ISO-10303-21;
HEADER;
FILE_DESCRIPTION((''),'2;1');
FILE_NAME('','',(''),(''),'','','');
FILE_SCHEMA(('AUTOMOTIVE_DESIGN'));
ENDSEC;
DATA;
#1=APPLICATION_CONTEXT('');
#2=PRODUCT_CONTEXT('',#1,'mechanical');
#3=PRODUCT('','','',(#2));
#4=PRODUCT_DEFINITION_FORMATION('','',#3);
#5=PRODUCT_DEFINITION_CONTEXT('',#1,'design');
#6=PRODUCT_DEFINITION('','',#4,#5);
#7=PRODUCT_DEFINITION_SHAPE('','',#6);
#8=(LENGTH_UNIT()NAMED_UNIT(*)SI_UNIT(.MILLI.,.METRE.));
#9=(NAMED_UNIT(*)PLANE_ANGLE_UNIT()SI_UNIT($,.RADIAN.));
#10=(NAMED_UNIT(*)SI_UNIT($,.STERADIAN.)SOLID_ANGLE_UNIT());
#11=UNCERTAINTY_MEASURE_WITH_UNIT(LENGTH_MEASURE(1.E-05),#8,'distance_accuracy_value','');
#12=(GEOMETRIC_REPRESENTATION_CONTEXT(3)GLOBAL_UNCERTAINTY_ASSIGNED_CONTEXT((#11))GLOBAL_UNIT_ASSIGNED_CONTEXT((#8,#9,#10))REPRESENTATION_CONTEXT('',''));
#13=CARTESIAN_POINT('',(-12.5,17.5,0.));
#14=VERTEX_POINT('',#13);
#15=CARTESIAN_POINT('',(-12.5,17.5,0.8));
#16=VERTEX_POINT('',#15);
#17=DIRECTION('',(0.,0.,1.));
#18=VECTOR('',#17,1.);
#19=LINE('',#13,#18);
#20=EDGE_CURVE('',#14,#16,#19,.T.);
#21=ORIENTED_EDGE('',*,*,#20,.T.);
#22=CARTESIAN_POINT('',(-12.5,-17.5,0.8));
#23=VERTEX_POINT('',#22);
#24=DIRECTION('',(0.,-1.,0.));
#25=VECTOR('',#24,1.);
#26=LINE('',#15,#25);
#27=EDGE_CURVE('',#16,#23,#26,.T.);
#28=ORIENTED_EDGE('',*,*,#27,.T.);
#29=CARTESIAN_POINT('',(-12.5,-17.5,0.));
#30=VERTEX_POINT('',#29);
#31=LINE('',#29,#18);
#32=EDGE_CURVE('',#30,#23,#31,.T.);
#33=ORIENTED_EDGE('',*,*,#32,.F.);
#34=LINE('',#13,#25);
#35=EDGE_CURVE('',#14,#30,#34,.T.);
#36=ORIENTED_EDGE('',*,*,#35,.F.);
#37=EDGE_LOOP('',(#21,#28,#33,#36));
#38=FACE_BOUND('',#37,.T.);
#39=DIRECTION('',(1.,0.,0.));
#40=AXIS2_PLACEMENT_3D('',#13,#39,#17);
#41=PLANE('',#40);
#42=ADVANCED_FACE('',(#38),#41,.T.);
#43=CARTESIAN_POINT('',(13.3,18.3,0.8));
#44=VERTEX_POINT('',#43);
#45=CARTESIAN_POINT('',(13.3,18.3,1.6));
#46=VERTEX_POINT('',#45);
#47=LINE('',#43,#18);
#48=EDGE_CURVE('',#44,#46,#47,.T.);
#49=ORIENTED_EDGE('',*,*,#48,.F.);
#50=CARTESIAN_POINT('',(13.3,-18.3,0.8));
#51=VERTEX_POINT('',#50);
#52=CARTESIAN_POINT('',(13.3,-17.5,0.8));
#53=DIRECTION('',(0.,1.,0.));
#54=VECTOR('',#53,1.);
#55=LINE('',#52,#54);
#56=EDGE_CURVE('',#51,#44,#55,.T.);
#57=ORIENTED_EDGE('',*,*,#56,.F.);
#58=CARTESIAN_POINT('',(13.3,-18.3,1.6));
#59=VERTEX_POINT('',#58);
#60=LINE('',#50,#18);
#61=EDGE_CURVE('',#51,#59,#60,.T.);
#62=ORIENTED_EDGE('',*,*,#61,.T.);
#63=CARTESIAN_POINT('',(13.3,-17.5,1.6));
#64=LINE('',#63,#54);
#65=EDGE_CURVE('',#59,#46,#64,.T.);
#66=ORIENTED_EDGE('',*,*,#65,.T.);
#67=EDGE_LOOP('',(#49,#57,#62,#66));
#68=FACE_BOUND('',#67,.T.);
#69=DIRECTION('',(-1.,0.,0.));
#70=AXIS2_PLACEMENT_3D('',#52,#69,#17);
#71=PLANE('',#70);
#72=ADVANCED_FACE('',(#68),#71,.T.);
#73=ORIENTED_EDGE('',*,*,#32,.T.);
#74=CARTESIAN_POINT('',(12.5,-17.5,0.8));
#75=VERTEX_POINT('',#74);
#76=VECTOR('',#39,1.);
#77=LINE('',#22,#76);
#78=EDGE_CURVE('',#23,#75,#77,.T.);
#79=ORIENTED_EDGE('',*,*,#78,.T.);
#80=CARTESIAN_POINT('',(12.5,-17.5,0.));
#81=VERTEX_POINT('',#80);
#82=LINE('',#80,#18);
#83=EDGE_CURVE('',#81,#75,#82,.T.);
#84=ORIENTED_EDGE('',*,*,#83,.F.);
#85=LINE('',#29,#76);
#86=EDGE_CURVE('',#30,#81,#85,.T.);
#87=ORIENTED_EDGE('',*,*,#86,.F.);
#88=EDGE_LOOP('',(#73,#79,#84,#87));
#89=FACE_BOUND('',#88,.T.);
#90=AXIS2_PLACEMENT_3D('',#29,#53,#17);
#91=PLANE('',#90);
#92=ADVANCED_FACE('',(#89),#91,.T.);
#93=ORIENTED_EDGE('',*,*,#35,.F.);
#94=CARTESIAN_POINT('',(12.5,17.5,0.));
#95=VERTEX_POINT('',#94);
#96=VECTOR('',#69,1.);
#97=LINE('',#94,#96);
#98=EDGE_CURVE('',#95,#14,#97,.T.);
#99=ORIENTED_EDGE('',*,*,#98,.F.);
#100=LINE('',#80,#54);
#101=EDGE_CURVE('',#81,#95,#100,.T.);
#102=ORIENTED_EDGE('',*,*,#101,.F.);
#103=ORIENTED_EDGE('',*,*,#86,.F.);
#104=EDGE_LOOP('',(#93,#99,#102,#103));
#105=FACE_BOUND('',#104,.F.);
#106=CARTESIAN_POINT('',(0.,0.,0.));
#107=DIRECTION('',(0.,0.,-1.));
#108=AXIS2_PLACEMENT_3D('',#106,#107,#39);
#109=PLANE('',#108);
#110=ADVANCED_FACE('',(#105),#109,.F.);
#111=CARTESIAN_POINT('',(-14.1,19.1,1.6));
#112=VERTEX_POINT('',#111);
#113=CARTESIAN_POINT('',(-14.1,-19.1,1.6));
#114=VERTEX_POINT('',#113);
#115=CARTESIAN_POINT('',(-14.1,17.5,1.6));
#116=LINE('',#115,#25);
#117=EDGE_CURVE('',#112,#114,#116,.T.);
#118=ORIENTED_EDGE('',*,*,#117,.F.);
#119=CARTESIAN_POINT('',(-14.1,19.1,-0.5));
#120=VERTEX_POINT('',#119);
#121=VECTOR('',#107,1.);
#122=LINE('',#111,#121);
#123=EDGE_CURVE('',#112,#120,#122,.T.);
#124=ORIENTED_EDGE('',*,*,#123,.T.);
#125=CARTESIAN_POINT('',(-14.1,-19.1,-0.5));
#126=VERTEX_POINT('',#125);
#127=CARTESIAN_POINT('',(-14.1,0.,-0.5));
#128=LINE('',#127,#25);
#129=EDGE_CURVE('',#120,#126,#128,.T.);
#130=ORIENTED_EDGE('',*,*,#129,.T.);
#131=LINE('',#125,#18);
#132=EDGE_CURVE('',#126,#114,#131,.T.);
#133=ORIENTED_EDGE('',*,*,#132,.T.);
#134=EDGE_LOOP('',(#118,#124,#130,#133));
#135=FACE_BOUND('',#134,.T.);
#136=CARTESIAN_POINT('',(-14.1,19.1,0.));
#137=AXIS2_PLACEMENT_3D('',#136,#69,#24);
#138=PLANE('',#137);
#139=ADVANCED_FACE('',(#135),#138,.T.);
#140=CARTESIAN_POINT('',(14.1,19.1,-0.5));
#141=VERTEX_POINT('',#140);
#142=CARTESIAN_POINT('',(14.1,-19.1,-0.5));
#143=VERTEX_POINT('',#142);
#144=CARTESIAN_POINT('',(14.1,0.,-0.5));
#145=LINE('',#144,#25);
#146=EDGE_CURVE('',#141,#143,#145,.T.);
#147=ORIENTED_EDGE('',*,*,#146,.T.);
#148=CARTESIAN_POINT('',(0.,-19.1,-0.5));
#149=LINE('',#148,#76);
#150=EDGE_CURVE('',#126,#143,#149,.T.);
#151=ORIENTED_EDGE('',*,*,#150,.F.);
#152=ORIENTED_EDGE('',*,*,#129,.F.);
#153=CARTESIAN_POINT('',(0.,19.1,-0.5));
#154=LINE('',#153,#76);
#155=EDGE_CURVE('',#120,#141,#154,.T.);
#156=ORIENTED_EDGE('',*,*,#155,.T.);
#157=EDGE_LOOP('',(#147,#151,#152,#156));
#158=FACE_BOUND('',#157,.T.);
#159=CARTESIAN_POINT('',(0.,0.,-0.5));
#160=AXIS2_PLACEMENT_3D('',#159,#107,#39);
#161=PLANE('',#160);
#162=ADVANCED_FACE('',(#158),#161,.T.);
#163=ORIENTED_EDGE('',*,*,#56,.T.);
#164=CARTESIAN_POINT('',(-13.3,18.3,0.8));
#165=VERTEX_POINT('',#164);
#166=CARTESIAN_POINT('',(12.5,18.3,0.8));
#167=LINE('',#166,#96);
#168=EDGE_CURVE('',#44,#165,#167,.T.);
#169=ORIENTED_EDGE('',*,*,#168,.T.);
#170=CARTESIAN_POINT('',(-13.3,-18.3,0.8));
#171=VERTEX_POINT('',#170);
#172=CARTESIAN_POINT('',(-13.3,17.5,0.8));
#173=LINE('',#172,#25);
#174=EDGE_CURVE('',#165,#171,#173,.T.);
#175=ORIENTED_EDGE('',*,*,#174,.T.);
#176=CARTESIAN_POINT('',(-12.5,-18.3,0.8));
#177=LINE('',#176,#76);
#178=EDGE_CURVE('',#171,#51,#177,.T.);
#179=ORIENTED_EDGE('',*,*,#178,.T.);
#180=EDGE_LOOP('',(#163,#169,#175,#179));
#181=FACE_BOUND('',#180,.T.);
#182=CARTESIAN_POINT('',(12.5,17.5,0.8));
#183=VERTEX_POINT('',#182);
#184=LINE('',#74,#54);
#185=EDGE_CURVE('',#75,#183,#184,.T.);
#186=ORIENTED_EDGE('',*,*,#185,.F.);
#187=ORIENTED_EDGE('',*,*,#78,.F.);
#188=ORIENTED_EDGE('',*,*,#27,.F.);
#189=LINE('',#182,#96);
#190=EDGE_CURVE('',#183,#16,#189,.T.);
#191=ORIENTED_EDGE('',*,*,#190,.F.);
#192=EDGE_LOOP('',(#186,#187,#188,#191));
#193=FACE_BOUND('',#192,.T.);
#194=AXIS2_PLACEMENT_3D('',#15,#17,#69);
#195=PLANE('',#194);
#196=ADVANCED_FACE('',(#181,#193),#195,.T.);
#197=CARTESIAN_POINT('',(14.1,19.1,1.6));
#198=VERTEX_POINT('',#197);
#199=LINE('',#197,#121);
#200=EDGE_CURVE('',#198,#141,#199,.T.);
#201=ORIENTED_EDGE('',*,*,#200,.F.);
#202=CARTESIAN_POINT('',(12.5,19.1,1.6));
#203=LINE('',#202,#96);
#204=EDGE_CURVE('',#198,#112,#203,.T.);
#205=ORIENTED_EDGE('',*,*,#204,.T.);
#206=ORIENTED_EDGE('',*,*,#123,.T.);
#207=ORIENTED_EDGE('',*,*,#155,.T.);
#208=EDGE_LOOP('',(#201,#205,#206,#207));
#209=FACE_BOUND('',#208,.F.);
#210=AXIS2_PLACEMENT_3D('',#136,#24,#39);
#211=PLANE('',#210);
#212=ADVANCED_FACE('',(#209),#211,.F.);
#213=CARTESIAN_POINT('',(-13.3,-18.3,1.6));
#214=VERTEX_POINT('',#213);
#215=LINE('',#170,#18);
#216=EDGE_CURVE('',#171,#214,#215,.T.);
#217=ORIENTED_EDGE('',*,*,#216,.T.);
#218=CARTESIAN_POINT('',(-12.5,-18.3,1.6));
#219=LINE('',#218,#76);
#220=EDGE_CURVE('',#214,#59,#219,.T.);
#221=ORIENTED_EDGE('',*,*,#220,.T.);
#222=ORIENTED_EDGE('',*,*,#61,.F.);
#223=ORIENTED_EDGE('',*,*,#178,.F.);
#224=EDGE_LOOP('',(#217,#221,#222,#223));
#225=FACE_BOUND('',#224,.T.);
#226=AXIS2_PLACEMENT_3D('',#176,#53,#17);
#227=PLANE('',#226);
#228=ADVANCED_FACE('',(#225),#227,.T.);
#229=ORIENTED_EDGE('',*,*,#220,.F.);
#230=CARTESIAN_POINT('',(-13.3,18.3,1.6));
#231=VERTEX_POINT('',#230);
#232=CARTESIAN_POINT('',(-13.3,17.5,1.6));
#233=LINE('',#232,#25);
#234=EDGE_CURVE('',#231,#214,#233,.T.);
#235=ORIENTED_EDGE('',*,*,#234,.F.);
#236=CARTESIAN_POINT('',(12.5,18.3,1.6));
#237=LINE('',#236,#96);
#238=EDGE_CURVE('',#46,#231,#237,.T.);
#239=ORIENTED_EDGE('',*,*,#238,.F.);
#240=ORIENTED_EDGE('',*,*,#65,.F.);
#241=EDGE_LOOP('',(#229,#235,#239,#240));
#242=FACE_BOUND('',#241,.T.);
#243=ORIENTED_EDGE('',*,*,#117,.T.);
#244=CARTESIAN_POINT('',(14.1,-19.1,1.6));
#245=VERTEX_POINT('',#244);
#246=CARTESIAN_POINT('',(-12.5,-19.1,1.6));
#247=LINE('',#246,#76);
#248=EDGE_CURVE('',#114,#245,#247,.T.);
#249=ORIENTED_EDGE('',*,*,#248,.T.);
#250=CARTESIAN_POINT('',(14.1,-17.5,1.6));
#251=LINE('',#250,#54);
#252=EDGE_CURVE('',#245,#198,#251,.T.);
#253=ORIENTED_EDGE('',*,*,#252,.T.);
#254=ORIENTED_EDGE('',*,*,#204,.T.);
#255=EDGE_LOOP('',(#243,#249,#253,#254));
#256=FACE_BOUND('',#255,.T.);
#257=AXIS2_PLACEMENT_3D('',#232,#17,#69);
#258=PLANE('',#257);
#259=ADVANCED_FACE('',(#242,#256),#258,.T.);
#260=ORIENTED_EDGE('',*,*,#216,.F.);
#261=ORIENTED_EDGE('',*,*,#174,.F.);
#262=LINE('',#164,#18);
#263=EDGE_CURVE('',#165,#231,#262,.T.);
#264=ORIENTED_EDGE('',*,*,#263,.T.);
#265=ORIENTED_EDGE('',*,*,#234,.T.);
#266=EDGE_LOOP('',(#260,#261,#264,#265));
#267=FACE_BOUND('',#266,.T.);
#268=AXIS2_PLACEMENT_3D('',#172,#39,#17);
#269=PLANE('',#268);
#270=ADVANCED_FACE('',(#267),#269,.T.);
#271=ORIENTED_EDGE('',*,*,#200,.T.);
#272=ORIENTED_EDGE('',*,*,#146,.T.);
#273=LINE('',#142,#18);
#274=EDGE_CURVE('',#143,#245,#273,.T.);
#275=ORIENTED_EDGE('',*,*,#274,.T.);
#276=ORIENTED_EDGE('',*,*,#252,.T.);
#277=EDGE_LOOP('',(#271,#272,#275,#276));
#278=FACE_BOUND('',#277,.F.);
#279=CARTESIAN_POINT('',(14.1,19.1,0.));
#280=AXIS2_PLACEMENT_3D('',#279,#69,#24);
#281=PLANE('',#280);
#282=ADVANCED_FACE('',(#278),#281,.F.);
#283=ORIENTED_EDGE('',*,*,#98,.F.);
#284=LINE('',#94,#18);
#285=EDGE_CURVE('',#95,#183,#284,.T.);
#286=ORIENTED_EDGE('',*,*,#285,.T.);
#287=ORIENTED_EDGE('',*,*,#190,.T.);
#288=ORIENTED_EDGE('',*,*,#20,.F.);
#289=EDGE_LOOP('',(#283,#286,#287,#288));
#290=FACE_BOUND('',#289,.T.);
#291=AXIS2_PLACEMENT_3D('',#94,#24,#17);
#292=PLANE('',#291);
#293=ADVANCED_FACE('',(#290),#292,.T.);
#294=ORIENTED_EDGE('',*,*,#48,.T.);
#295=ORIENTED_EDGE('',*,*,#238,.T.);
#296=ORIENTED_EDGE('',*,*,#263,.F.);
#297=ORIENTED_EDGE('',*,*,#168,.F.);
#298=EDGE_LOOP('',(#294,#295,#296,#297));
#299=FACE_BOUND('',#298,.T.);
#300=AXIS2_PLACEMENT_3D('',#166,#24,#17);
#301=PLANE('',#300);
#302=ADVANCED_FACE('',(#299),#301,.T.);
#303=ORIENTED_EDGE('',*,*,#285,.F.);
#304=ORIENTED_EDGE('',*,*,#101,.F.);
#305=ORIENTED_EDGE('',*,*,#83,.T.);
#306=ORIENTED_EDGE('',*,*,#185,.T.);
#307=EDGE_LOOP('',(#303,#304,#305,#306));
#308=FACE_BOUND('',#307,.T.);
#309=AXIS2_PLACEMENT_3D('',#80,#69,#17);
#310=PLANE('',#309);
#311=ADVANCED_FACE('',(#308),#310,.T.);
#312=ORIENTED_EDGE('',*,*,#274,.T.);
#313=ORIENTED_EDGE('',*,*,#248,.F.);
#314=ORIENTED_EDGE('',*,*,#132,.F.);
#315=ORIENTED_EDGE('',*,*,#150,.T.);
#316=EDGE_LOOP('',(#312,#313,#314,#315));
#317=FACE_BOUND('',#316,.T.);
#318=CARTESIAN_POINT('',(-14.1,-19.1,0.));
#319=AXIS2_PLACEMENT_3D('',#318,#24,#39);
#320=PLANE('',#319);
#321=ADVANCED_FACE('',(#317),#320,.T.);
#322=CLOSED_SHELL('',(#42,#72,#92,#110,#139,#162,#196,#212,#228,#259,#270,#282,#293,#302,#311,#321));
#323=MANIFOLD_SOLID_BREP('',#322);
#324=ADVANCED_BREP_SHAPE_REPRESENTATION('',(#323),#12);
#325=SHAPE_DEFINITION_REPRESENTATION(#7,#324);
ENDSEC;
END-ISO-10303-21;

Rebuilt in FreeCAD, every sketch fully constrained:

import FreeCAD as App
import Part
import Sketcher
from FreeCAD import Vector
Q = App.Units.Quantity


def add_polygon(sketch, points):
    """Adds a closed chain of lines whose ends are joined by coincident constraints."""
    first, n = sketch.GeometryCount, len(points)
    for a, b in zip(points, points[1:] + points[:1]):
        sketch.addGeometry(Part.LineSegment(App.Vector(*a, 0), App.Vector(*b, 0)), False)
    for i in range(n):
        sketch.addConstraint(Sketcher.Constraint("Coincident", first + i, 2, first + (i + 1) % n, 1))

doc = App.newDocument("Part")
params = doc.addObject("Spreadsheet::Sheet", "Params")
for row, (alias, value) in enumerate([
    ("sketch1_width", "1.6 mm"),
    ("sketch2_width", "25 mm"),
    ("sketch2_height", "35 mm"),
    ("sketch3_width", "28.2 mm"),
    ("sketch3_height", "38.2 mm"),
    ("pad1_length", "0.5 mm"),
], start=1):
    params.set(f"A{row}", alias)
    params.set(f"B{row}", "=" + value)
    params.setAlias(f"B{row}", alias)

body = doc.addObject("PartDesign::Body", "Body")

sketch1 = doc.addObject("Sketcher::SketchObject", "Sketch")
body.addObject(sketch1)
sketch1.AttachmentSupport = (doc.XZ_Plane, [""])
sketch1.MapMode = "FlatFace"
add_polygon(sketch1, [(-14.1, 0), (-12.5, 0), (-12.5, 0.8), (-13.3, 0.8), (-13.3, 1.6), (-14.1, 1.6)])
sketch1.addConstraint([
    Sketcher.Constraint("Horizontal", 0),
    Sketcher.Constraint("Vertical", 1),
    Sketcher.Constraint("Horizontal", 2),
    Sketcher.Constraint("Vertical", 3),
    Sketcher.Constraint("Horizontal", 4),
    Sketcher.Constraint("Vertical", 5),
    Sketcher.Constraint("PointOnObject", 0, 2, -1),
    Sketcher.Constraint("Equal", 2, 4),
    Sketcher.Constraint("Equal", 4, 1),
    Sketcher.Constraint("Equal", 1, 3),
    Sketcher.Constraint("DistanceX", 0, 1, 0, 2, Q("1.6 mm")),
    Sketcher.Constraint("DistanceX", 0, 2, -1, 1, Q("12.5 mm")),
])
sketch1.setExpression("Constraints[16]", "Params.sketch1_width")

sketch2 = doc.addObject("Sketcher::SketchObject", "Sketch001")
body.addObject(sketch2)
sketch2.AttachmentSupport = (doc.XY_Plane, [""])
sketch2.MapMode = "FlatFace"
add_polygon(sketch2, [(-12.5, 17.5), (-12.5, -17.5), (12.5, -17.5), (12.5, 17.5)])
sketch2.addConstraint([
    Sketcher.Constraint("Vertical", 0),
    Sketcher.Constraint("Horizontal", 1),
    Sketcher.Constraint("Vertical", 2),
    Sketcher.Constraint("Horizontal", 3),
    Sketcher.Constraint("Symmetric", 0, 2, 2, 2, -1, 1),
    Sketcher.Constraint("DistanceX", 1, 1, 1, 2, Q("25 mm")),
    Sketcher.Constraint("DistanceY", 0, 2, 0, 1, Q("35 mm")),
])
sketch2.setExpression("Constraints[9]", "Params.sketch2_width")
sketch2.setExpression("Constraints[10]", "Params.sketch2_height")
doc.recompute()

additivepipe = doc.addObject("PartDesign::AdditivePipe", "AdditivePipe")
body.addObject(additivepipe)
additivepipe.Profile = sketch1
additivepipe.Spine = (sketch2, ["Edge1", "Edge2", "Edge3", "Edge4"])
additivepipe.Transition = "Right corner"

sketch3 = doc.addObject("Sketcher::SketchObject", "Sketch002")
body.addObject(sketch3)
sketch3.AttachmentSupport = (doc.XY_Plane, [""])
sketch3.MapMode = "FlatFace"
add_polygon(sketch3, [(-14.1, -19.1), (-14.1, 19.1), (14.1, 19.1), (14.1, -19.1)])
sketch3.addConstraint([
    Sketcher.Constraint("Vertical", 0),
    Sketcher.Constraint("Horizontal", 1),
    Sketcher.Constraint("Vertical", 2),
    Sketcher.Constraint("Horizontal", 3),
    Sketcher.Constraint("Symmetric", 0, 2, 2, 2, -1, 1),
    Sketcher.Constraint("DistanceX", 1, 1, 1, 2, Q("28.2 mm")),
    Sketcher.Constraint("DistanceY", 0, 1, 0, 2, Q("38.2 mm")),
])
sketch3.setExpression("Constraints[9]", "Params.sketch3_width")
sketch3.setExpression("Constraints[10]", "Params.sketch3_height")
pad1 = doc.addObject("PartDesign::Pad", "Pad")
body.addObject(pad1)
pad1.Profile = sketch3
pad1.setExpression("Length", "Params.pad1_length")
pad1.Reversed = True

doc.recompute()
